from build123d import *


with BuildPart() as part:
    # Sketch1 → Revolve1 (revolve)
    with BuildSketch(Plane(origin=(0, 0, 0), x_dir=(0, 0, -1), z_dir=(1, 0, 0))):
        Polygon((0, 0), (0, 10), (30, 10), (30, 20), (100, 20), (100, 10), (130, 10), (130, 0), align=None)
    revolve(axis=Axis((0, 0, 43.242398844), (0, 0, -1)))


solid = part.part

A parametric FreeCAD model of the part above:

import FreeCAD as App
import Part
import Sketcher

V = App.Vector
Q = App.Units.Quantity


def add_polygon(sketch, points):
    """Adds a closed chain of lines whose ends are joined by coincident constraints."""
    first, n = sketch.GeometryCount, len(points)
    for a, b in zip(points, points[1:] + points[:1]):
        sketch.addGeometry(Part.LineSegment(App.Vector(*a, 0), App.Vector(*b, 0)), False)
    for i in range(n):
        sketch.addConstraint(Sketcher.Constraint("Coincident", first + i, 2, first + (i + 1) % n, 1))

doc = App.newDocument("Part")
body = doc.addObject("PartDesign::Body", "Body")

sketch1 = body.newObject("Sketcher::SketchObject", "Sketch")
sketch1.AttachmentSupport = (doc.getObject("YZ_Plane"), [""])
sketch1.MapMode = "FlatFace"
add_polygon(sketch1, [(10, 0), (0, 0), (0, -130), (10, -130), (10, -100), (20, -100), (20, -30), (10, -30)])
sketch1.addConstraint([
    Sketcher.Constraint("Horizontal", 0),
    Sketcher.Constraint("Vertical", 1),
    Sketcher.Constraint("Horizontal", 2),
    Sketcher.Constraint("Vertical", 3),
    Sketcher.Constraint("Horizontal", 4),
    Sketcher.Constraint("Vertical", 5),
    Sketcher.Constraint("Horizontal", 6),
    Sketcher.Constraint("Vertical", 7),
    Sketcher.Constraint("Coincident", 0, 2, -1, 1),
    Sketcher.Constraint("Vertical", 3, 2, 6, 2),
    Sketcher.Constraint("Equal", 2, 4),
    Sketcher.Constraint("Equal", 3, 7),
    Sketcher.Constraint("DistanceX", 0, 2, 0, 1, Q("10 mm")),
    Sketcher.Constraint("DistanceY", 1, 2, 1, 1, Q("130 mm")),
    Sketcher.Constraint("DistanceY", 3, 1, 3, 2, Q("30 mm")),
])
revolution = body.newObject("PartDesign::Revolution", "Revolution")
revolution.Profile = sketch1
revolution.ReferenceAxis = (sketch1, ["V_Axis"])
revolution.Angle = 360

doc.recompute()
